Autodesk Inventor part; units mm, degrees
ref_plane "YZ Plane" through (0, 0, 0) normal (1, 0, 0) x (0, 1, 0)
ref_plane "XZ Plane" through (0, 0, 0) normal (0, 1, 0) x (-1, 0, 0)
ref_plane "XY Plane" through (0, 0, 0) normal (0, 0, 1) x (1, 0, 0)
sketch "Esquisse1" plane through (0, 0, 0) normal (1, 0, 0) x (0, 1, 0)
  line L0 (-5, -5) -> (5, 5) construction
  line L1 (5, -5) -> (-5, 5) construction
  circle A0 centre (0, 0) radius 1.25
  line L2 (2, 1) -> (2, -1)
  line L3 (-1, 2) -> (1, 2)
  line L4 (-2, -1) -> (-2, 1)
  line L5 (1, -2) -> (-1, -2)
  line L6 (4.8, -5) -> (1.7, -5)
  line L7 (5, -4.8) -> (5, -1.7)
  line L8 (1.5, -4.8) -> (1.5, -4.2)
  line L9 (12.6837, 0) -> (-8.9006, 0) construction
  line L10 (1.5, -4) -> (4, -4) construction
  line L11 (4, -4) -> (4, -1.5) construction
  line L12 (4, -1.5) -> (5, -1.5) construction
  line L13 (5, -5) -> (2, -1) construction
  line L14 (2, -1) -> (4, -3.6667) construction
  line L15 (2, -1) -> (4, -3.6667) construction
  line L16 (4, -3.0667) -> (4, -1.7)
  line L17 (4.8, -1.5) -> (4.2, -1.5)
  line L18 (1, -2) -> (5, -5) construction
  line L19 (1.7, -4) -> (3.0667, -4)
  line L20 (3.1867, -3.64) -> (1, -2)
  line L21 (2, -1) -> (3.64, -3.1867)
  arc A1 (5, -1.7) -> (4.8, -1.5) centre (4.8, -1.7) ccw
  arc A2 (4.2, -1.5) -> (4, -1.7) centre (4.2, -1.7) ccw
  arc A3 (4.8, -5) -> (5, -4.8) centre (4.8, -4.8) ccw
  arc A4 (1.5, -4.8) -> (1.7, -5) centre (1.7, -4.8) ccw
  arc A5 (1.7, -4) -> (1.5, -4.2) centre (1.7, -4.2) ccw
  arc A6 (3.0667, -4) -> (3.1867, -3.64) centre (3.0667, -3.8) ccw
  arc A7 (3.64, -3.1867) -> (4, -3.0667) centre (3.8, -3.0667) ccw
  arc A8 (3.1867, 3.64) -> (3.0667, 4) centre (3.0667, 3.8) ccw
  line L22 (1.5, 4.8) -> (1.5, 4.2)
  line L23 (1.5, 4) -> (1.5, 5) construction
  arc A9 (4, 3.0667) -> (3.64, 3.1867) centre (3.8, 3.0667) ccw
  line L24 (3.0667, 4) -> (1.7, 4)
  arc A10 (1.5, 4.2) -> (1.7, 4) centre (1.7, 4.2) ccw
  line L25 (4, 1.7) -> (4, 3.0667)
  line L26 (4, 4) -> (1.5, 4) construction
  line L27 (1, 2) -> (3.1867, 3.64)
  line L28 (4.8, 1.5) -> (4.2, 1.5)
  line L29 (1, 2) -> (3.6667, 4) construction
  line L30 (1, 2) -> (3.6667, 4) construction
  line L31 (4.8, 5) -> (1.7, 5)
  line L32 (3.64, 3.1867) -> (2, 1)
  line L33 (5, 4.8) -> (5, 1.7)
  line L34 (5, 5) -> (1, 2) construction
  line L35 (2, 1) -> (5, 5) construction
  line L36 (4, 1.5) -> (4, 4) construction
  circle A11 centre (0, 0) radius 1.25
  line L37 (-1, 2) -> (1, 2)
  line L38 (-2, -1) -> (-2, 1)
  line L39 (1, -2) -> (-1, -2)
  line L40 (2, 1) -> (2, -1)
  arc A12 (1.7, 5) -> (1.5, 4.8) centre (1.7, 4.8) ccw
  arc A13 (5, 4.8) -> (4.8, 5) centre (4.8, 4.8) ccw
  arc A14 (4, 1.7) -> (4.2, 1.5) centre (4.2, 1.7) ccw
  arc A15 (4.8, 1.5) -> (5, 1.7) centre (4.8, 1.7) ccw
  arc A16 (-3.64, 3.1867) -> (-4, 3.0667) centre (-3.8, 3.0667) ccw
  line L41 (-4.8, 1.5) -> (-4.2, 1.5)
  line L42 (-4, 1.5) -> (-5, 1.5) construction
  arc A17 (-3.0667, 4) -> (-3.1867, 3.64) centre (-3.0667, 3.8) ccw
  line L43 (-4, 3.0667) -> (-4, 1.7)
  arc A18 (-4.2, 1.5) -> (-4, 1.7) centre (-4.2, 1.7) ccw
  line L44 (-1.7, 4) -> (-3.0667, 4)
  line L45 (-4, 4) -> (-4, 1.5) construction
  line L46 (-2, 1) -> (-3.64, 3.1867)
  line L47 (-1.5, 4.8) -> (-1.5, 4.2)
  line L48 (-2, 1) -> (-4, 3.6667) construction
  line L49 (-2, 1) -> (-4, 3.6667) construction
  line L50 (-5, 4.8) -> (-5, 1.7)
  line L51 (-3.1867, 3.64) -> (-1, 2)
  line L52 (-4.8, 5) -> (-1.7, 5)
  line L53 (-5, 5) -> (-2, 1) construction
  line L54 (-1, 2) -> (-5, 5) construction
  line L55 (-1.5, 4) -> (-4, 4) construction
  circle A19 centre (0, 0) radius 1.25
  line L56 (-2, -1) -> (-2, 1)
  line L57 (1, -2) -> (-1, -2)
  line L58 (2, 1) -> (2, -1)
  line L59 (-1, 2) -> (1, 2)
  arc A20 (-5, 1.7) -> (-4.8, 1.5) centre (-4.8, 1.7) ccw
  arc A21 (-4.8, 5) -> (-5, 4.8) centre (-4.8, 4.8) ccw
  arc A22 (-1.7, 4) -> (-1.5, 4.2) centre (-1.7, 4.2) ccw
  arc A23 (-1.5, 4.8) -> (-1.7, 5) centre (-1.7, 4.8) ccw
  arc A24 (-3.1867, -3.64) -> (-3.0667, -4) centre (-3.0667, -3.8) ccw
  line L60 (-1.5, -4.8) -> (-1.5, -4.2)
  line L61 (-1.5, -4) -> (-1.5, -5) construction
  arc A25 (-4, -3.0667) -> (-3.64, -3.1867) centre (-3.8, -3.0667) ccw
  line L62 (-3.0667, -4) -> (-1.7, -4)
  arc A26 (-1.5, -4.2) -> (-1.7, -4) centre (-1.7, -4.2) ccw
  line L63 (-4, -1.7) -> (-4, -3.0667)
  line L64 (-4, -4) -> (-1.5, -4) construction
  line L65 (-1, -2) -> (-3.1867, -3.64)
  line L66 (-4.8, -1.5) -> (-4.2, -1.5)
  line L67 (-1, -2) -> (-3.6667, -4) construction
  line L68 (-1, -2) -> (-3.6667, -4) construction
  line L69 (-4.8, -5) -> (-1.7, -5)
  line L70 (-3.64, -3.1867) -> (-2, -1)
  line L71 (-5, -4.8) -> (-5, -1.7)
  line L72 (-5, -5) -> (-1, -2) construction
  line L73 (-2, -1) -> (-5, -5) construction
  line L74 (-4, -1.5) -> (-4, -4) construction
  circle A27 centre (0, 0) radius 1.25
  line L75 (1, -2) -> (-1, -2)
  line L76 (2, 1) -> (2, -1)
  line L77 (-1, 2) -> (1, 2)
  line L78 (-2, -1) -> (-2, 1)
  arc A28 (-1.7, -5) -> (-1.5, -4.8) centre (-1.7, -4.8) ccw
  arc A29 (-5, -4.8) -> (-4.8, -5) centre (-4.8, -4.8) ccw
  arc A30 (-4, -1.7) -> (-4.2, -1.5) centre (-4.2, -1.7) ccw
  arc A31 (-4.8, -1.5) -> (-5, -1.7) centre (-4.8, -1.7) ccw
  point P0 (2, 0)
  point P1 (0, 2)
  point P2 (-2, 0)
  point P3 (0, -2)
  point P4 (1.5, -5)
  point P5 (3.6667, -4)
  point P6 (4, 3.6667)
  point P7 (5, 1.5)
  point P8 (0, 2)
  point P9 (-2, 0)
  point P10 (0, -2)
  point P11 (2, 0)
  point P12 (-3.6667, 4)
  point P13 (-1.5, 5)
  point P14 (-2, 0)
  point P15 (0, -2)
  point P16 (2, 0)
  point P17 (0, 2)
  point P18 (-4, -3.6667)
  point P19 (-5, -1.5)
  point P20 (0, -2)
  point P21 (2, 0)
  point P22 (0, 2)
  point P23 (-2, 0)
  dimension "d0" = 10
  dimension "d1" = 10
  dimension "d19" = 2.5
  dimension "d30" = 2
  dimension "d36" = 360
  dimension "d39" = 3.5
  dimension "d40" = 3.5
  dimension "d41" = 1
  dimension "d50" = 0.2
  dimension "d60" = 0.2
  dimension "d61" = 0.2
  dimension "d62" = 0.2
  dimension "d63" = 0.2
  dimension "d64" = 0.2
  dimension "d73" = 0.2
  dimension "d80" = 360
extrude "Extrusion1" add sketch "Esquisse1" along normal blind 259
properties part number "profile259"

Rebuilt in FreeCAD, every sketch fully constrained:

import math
import FreeCAD as App
import Part
import Sketcher

V = App.Vector
Q = App.Units.Quantity

doc = App.newDocument("Part")
body = doc.addObject("PartDesign::Body", "Body")

# Sketch on YZ plane
sketch1 = doc.addObject("Sketcher::SketchObject", "Sketch")
body.addObject(sketch1)
sketch1.AttachmentSupport = (doc.YZ_Plane, [""])
sketch1.MapMode = "FlatFace"
sketch1.addGeometry([
    Part.LineSegment(V(2, -1, 0), V(2, 1, 0)),  # 0
    Part.LineSegment(V(2, 1, 0), V(3.64, 3.19, 0)),  # 1
    Part.ArcOfCircle(Part.Circle(V(3.8, 3.07, 0), V(0, 0, 1), 0.2), math.radians(0), math.radians(143)),  # 2
    Part.LineSegment(V(4, 3.07, 0), V(4, 1.7, 0)),  # 3
    Part.ArcOfCircle(Part.Circle(V(4.2, 1.7, 0), V(0, 0, 1), 0.2), math.radians(180), math.radians(270)),  # 4
    Part.LineSegment(V(4.2, 1.5, 0), V(4.8, 1.5, 0)),  # 5
    Part.ArcOfCircle(Part.Circle(V(4.8, 1.7, 0), V(0, 0, 1), 0.2), math.radians(-90), math.radians(0)),  # 6
    Part.LineSegment(V(5, 1.7, 0), V(5, 4.8, 0)),  # 7
    Part.ArcOfCircle(Part.Circle(V(4.8, 4.8, 0), V(0, 0, 1), 0.2), math.radians(0), math.radians(90)),  # 8
    Part.LineSegment(V(4.8, 5, 0), V(1.7, 5, 0)),  # 9
    Part.ArcOfCircle(Part.Circle(V(1.7, 4.8, 0), V(0, 0, 1), 0.2), math.radians(90), math.radians(180)),  # 10
    Part.LineSegment(V(1.5, 4.8, 0), V(1.5, 4.2, 0)),  # 11
    Part.ArcOfCircle(Part.Circle(V(1.7, 4.2, 0), V(0, 0, 1), 0.2), math.radians(180), math.radians(270)),  # 12
    Part.LineSegment(V(1.7, 4, 0), V(3.07, 4, 0)),  # 13
    Part.ArcOfCircle(Part.Circle(V(3.07, 3.8, 0), V(0, 0, 1), 0.2), math.radians(-53), math.radians(90)),  # 14
    Part.LineSegment(V(3.19, 3.64, 0), V(1, 2, 0)),  # 15
    Part.LineSegment(V(1, 2, 0), V(-1, 2, 0)),  # 16
    Part.LineSegment(V(-1, 2, 0), V(-3.19, 3.64, 0)),  # 17
    Part.ArcOfCircle(Part.Circle(V(-3.07, 3.8, 0), V(0, 0, 1), 0.2), math.radians(90), math.radians(233)),  # 18
    Part.LineSegment(V(-3.07, 4, 0), V(-1.7, 4, 0)),  # 19
    Part.ArcOfCircle(Part.Circle(V(-1.7, 4.2, 0), V(0, 0, 1), 0.2), math.radians(-90), math.radians(0)),  # 20
    Part.LineSegment(V(-1.5, 4.2, 0), V(-1.5, 4.8, 0)),  # 21
    Part.ArcOfCircle(Part.Circle(V(-1.7, 4.8, 0), V(0, 0, 1), 0.2), math.radians(0), math.radians(90)),  # 22
    Part.LineSegment(V(-1.7, 5, 0), V(-4.8, 5, 0)),  # 23
    Part.ArcOfCircle(Part.Circle(V(-4.8, 4.8, 0), V(0, 0, 1), 0.2), math.radians(90), math.radians(180)),  # 24
    Part.LineSegment(V(-5, 4.8, 0), V(-5, 1.7, 0)),  # 25
    Part.ArcOfCircle(Part.Circle(V(-4.8, 1.7, 0), V(0, 0, 1), 0.2), math.radians(180), math.radians(270)),  # 26
    Part.LineSegment(V(-4.8, 1.5, 0), V(-4.2, 1.5, 0)),  # 27
    Part.ArcOfCircle(Part.Circle(V(-4.2, 1.7, 0), V(0, 0, 1), 0.2), math.radians(-90), math.radians(0)),  # 28
    Part.LineSegment(V(-4, 1.7, 0), V(-4, 3.07, 0)),  # 29
    Part.ArcOfCircle(Part.Circle(V(-3.8, 3.07, 0), V(0, 0, 1), 0.2), math.radians(37), math.radians(180)),  # 30
    Part.LineSegment(V(-3.64, 3.19, 0), V(-2, 1, 0)),  # 31
    Part.LineSegment(V(-2, 1, 0), V(-2, -1, 0)),  # 32
    Part.LineSegment(V(-2, -1, 0), V(-3.64, -3.19, 0)),  # 33
    Part.ArcOfCircle(Part.Circle(V(-3.8, -3.07, 0), V(0, 0, 1), 0.2), math.radians(180), math.radians(323)),  # 34
    Part.LineSegment(V(-4, -3.07, 0), V(-4, -1.7, 0)),  # 35
    Part.ArcOfCircle(Part.Circle(V(-4.2, -1.7, 0), V(0, 0, 1), 0.2), math.radians(0), math.radians(90)),  # 36
    Part.LineSegment(V(-4.2, -1.5, 0), V(-4.8, -1.5, 0)),  # 37
    Part.ArcOfCircle(Part.Circle(V(-4.8, -1.7, 0), V(0, 0, 1), 0.2), math.radians(90), math.radians(180)),  # 38
    Part.LineSegment(V(-5, -1.7, 0), V(-5, -4.8, 0)),  # 39
    Part.ArcOfCircle(Part.Circle(V(-4.8, -4.8, 0), V(0, 0, 1), 0.2), math.radians(180), math.radians(270)),  # 40
    Part.LineSegment(V(-4.8, -5, 0), V(-1.7, -5, 0)),  # 41
    Part.ArcOfCircle(Part.Circle(V(-1.7, -4.8, 0), V(0, 0, 1), 0.2), math.radians(-90), math.radians(0)),  # 42
    Part.LineSegment(V(-1.5, -4.8, 0), V(-1.5, -4.2, 0)),  # 43
    Part.ArcOfCircle(Part.Circle(V(-1.7, -4.2, 0), V(0, 0, 1), 0.2), math.radians(0), math.radians(90)),  # 44
    Part.LineSegment(V(-1.7, -4, 0), V(-3.07, -4, 0)),  # 45
    Part.ArcOfCircle(Part.Circle(V(-3.07, -3.8, 0), V(0, 0, 1), 0.2), math.radians(127), math.radians(270)),  # 46
    Part.LineSegment(V(-3.19, -3.64, 0), V(-1, -2, 0)),  # 47
    Part.LineSegment(V(-1, -2, 0), V(1, -2, 0)),  # 48
    Part.LineSegment(V(1, -2, 0), V(3.19, -3.64, 0)),  # 49
    Part.ArcOfCircle(Part.Circle(V(3.07, -3.8, 0), V(0, 0, 1), 0.2), math.radians(-90), math.radians(53)),  # 50
    Part.LineSegment(V(3.07, -4, 0), V(1.7, -4, 0)),  # 51
    Part.ArcOfCircle(Part.Circle(V(1.7, -4.2, 0), V(0, 0, 1), 0.2), math.radians(90), math.radians(180)),  # 52
    Part.LineSegment(V(1.5, -4.2, 0), V(1.5, -4.8, 0)),  # 53
    Part.ArcOfCircle(Part.Circle(V(1.7, -4.8, 0), V(0, 0, 1), 0.2), math.radians(180), math.radians(270)),  # 54
    Part.LineSegment(V(1.7, -5, 0), V(4.8, -5, 0)),  # 55
    Part.ArcOfCircle(Part.Circle(V(4.8, -4.8, 0), V(0, 0, 1), 0.2), math.radians(-90), math.radians(0)),  # 56
    Part.LineSegment(V(5, -4.8, 0), V(5, -1.7, 0)),  # 57
    Part.ArcOfCircle(Part.Circle(V(4.8, -1.7, 0), V(0, 0, 1), 0.2), math.radians(0), math.radians(90)),  # 58
    Part.LineSegment(V(4.8, -1.5, 0), V(4.2, -1.5, 0)),  # 59
    Part.ArcOfCircle(Part.Circle(V(4.2, -1.7, 0), V(0, 0, 1), 0.2), math.radians(90), math.radians(180)),  # 60
    Part.LineSegment(V(4, -1.7, 0), V(4, -3.07, 0)),  # 61
    Part.ArcOfCircle(Part.Circle(V(3.8, -3.07, 0), V(0, 0, 1), 0.2), math.radians(-143), math.radians(0)),  # 62
    Part.LineSegment(V(3.64, -3.19, 0), V(2, -1, 0)),  # 63
    Part.Circle(V(0, 0, 0), V(0, 0, 1), 1.25),  # 64
], False)
sketch1.addConstraint([
    Sketcher.Constraint("Coincident", 0, 2, 1, 1),
    Sketcher.Constraint("Tangent", 1, 2, 2, 2),
    Sketcher.Constraint("Tangent", 2, 1, 3, 1),
    Sketcher.Constraint("Tangent", 3, 2, 4, 1),
    Sketcher.Constraint("Tangent", 4, 2, 5, 1),
    Sketcher.Constraint("Tangent", 5, 2, 6, 1),
    Sketcher.Constraint("Tangent", 6, 2, 7, 1),
    Sketcher.Constraint("Tangent", 7, 2, 8, 1),
    Sketcher.Constraint("Tangent", 8, 2, 9, 1),
    Sketcher.Constraint("Tangent", 9, 2, 10, 1),
    Sketcher.Constraint("Tangent", 10, 2, 11, 1),
    Sketcher.Constraint("Tangent", 11, 2, 12, 1),
    Sketcher.Constraint("Tangent", 12, 2, 13, 1),
    Sketcher.Constraint("Tangent", 13, 2, 14, 2),
    Sketcher.Constraint("Tangent", 14, 1, 15, 1),
    Sketcher.Constraint("Coincident", 15, 2, 16, 1),
    Sketcher.Constraint("Coincident", 16, 2, 17, 1),
    Sketcher.Constraint("Tangent", 17, 2, 18, 2),
    Sketcher.Constraint("Tangent", 18, 1, 19, 1),
    Sketcher.Constraint("Tangent", 19, 2, 20, 1),
    Sketcher.Constraint("Tangent", 20, 2, 21, 1),
    Sketcher.Constraint("Tangent", 21, 2, 22, 1),
    Sketcher.Constraint("Tangent", 22, 2, 23, 1),
    Sketcher.Constraint("Tangent", 23, 2, 24, 1),
    Sketcher.Constraint("Tangent", 24, 2, 25, 1),
    Sketcher.Constraint("Tangent", 25, 2, 26, 1),
    Sketcher.Constraint("Tangent", 26, 2, 27, 1),
    Sketcher.Constraint("Tangent", 27, 2, 28, 1),
    Sketcher.Constraint("Tangent", 28, 2, 29, 1),
    Sketcher.Constraint("Tangent", 29, 2, 30, 2),
    Sketcher.Constraint("Tangent", 30, 1, 31, 1),
    Sketcher.Constraint("Coincident", 31, 2, 32, 1),
    Sketcher.Constraint("Coincident", 32, 2, 33, 1),
    Sketcher.Constraint("Tangent", 33, 2, 34, 2),
    Sketcher.Constraint("Tangent", 34, 1, 35, 1),
    Sketcher.Constraint("Tangent", 35, 2, 36, 1),
    Sketcher.Constraint("Tangent", 36, 2, 37, 1),
    Sketcher.Constraint("Tangent", 37, 2, 38, 1),
    Sketcher.Constraint("Tangent", 38, 2, 39, 1),
    Sketcher.Constraint("Tangent", 39, 2, 40, 1),
    Sketcher.Constraint("Tangent", 40, 2, 41, 1),
    Sketcher.Constraint("Tangent", 41, 2, 42, 1),
    Sketcher.Constraint("Tangent", 42, 2, 43, 1),
    Sketcher.Constraint("Tangent", 43, 2, 44, 1),
    Sketcher.Constraint("Tangent", 44, 2, 45, 1),
    Sketcher.Constraint("Tangent", 45, 2, 46, 2),
    Sketcher.Constraint("Tangent", 46, 1, 47, 1),
    Sketcher.Constraint("Coincident", 47, 2, 48, 1),
    Sketcher.Constraint("Coincident", 48, 2, 49, 1),
    Sketcher.Constraint("Tangent", 49, 2, 50, 2),
    Sketcher.Constraint("Tangent", 50, 1, 51, 1),
    Sketcher.Constraint("Tangent", 51, 2, 52, 1),
    Sketcher.Constraint("Tangent", 52, 2, 53, 1),
    Sketcher.Constraint("Tangent", 53, 2, 54, 1),
    Sketcher.Constraint("Tangent", 54, 2, 55, 1),
    Sketcher.Constraint("Tangent", 55, 2, 56, 1),
    Sketcher.Constraint("Tangent", 56, 2, 57, 1),
    Sketcher.Constraint("Tangent", 57, 2, 58, 1),
    Sketcher.Constraint("Tangent", 58, 2, 59, 1),
    Sketcher.Constraint("Tangent", 59, 2, 60, 1),
    Sketcher.Constraint("Tangent", 60, 2, 61, 1),
    Sketcher.Constraint("Tangent", 61, 2, 62, 2),
    Sketcher.Constraint("Tangent", 62, 1, 63, 1),
    Sketcher.Constraint("Coincident", 63, 2, 0, 1),
    Sketcher.Constraint("Vertical", 0),
    Sketcher.Constraint("Vertical", 3),
    Sketcher.Constraint("Horizontal", 5),
    Sketcher.Constraint("Vertical", 7),
    Sketcher.Constraint("Horizontal", 9),
    Sketcher.Constraint("Vertical", 11),
    Sketcher.Constraint("Horizontal", 13),
    Sketcher.Constraint("Horizontal", 16),
    Sketcher.Constraint("Horizontal", 19),
    Sketcher.Constraint("Vertical", 21),
    Sketcher.Constraint("Horizontal", 23),
    Sketcher.Constraint("Vertical", 25),
    Sketcher.Constraint("Horizontal", 27),
    Sketcher.Constraint("Vertical", 29),
    Sketcher.Constraint("Vertical", 32),
    Sketcher.Constraint("Vertical", 35),
    Sketcher.Constraint("Horizontal", 37),
    Sketcher.Constraint("Vertical", 39),
    Sketcher.Constraint("Horizontal", 41),
    Sketcher.Constraint("Vertical", 43),
    Sketcher.Constraint("Horizontal", 45),
    Sketcher.Constraint("Horizontal", 48),
    Sketcher.Constraint("Horizontal", 51),
    Sketcher.Constraint("Vertical", 53),
    Sketcher.Constraint("Horizontal", 55),
    Sketcher.Constraint("Vertical", 57),
    Sketcher.Constraint("Horizontal", 59),
    Sketcher.Constraint("Vertical", 61),
    Sketcher.Constraint("Coincident", 64, 3, -1, 1),
    Sketcher.Constraint("Equal", 2, 4),
    Sketcher.Constraint("Equal", 4, 6),
    Sketcher.Constraint("Equal", 6, 8),
    Sketcher.Constraint("Equal", 8, 10),
    Sketcher.Constraint("Equal", 10, 12),
    Sketcher.Constraint("Equal", 12, 14),
    Sketcher.Constraint("Equal", 14, 18),
    Sketcher.Constraint("Equal", 18, 20),
    Sketcher.Constraint("Equal", 20, 22),
    Sketcher.Constraint("Equal", 22, 24),
    Sketcher.Constraint("Equal", 24, 26),
    Sketcher.Constraint("Equal", 26, 28),
    Sketcher.Constraint("Equal", 28, 30),
    Sketcher.Constraint("Equal", 30, 34),
    Sketcher.Constraint("Equal", 34, 36),
    Sketcher.Constraint("Equal", 36, 38),
    Sketcher.Constraint("Equal", 38, 40),
    Sketcher.Constraint("Equal", 40, 42),
    Sketcher.Constraint("Equal", 42, 44),
    Sketcher.Constraint("Equal", 44, 46),
    Sketcher.Constraint("Equal", 46, 50),
    Sketcher.Constraint("Equal", 50, 52),
    Sketcher.Constraint("Equal", 52, 54),
    Sketcher.Constraint("Equal", 54, 56),
    Sketcher.Constraint("Equal", 56, 58),
    Sketcher.Constraint("Equal", 58, 60),
    Sketcher.Constraint("Equal", 60, 62),
    Sketcher.Constraint("Symmetric", 2, 3, 34, 3, -1, 1),
    Sketcher.Constraint("Symmetric", 6, 3, 38, 3, -1, 1),
    Sketcher.Constraint("Symmetric", 10, 3, 42, 3, -1, 1),
    Sketcher.Constraint("Symmetric", 14, 3, 46, 3, -1, 1),
    Sketcher.Constraint("Symmetric", 18, 3, 50, 3, -1, 1),
    Sketcher.Constraint("Symmetric", 22, 3, 54, 3, -1, 1),
    Sketcher.Constraint("Symmetric", 26, 3, 58, 3, -1, 1),
    Sketcher.Constraint("Symmetric", 30, 3, 62, 3, -1, 1),
    Sketcher.Constraint("Symmetric", 0, 2, 32, 2, -1, 1),
    Sketcher.Constraint("Symmetric", 15, 2, 47, 2, -1, 1),
    Sketcher.Constraint("Symmetric", 14, 3, 18, 3, -2),
    Sketcher.Constraint("Symmetric", 10, 3, 22, 3, -2),
    Sketcher.Constraint("Symmetric", 6, 3, 26, 3, -2),
    Sketcher.Constraint("Symmetric", 2, 3, 30, 3, -2),
    Sketcher.Constraint("Perpendicular", 1, 17),
    Sketcher.Constraint("Perpendicular", 15, 31),
    Sketcher.Constraint("Perpendicular", 33, 49),
    Sketcher.Constraint("Perpendicular", 47, 63),
    Sketcher.Constraint("Horizontal", 14, 1, 17, 2),
    Sketcher.Constraint("Equal", 48, 0),
    Sketcher.Constraint("Equal", 51, 3),
    Sketcher.Constraint("Equal", 55, 7),
    Sketcher.Constraint("Equal", 59, 11),
    Sketcher.Constraint("Equal", 1, 15),
    Sketcher.Constraint("Diameter", 64, 2.5),
    Sketcher.Constraint("Radius", 2, 0.2),
    Sketcher.Constraint("DistanceX", 16, 2, 16, 1, 2.0),
    Sketcher.Constraint("DistanceX", -1, 1, 0, 2, 2.0),
    Sketcher.Constraint("DistanceX", 5, 1, 5, 2, 0.6),
    Sketcher.Constraint("DistanceX", 9, 2, 9, 1, 3.1),
    Sketcher.Constraint("DistanceX", -1, 1, 2, 1, 4.0),
    Sketcher.Constraint("Angle", 1, Q("53.1305 deg")),
])
pad1 = doc.addObject("PartDesign::Pad", "Pad")
body.addObject(pad1)
pad1.Profile = sketch1
pad1.Length = 259

doc.recompute()
